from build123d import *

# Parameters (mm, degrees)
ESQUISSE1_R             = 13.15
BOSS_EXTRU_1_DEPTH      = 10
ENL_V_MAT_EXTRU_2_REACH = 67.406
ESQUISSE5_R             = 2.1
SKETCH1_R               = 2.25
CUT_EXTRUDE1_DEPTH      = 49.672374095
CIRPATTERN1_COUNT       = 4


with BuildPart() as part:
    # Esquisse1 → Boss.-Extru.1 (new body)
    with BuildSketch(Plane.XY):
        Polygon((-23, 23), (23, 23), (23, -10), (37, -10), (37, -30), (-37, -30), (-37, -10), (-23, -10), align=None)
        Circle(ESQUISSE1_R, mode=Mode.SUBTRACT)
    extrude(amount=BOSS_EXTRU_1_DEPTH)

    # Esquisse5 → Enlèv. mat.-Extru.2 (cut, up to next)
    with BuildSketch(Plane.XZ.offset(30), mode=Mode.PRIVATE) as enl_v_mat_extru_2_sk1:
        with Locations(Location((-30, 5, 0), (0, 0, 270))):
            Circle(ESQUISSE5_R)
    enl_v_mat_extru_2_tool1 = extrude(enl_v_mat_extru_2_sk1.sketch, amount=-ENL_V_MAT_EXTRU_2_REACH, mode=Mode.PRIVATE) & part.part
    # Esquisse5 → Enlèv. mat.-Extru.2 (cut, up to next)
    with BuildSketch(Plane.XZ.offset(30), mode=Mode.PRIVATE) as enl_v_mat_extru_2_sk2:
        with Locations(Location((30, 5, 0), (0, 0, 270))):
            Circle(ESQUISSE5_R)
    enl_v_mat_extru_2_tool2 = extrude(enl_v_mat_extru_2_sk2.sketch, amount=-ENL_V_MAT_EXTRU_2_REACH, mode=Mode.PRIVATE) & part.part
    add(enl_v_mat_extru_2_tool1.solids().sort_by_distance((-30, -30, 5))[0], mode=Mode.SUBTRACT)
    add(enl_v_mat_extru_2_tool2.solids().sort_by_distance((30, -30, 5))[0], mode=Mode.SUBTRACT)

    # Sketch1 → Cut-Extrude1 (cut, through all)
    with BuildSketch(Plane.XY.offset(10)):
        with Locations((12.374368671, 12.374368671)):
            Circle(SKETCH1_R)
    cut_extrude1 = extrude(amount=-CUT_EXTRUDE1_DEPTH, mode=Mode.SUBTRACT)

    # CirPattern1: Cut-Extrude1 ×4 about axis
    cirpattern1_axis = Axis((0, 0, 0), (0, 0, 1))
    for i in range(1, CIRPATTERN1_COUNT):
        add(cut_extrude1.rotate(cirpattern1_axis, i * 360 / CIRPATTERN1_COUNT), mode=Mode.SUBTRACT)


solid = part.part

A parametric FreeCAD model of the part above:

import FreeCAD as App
import Part
import Sketcher

V = App.Vector
Q = App.Units.Quantity


def add_polygon(sketch, points):
    """Adds a closed chain of lines whose ends are joined by coincident constraints."""
    first, n = sketch.GeometryCount, len(points)
    for a, b in zip(points, points[1:] + points[:1]):
        sketch.addGeometry(Part.LineSegment(App.Vector(*a, 0), App.Vector(*b, 0)), False)
    for i in range(n):
        sketch.addConstraint(Sketcher.Constraint("Coincident", first + i, 2, first + (i + 1) % n, 1))

doc = App.newDocument("Part")
body = doc.addObject("PartDesign::Body", "Body")

# Sketch on XY plane
sketch1 = body.newObject("Sketcher::SketchObject", "Sketch")
sketch1.AttachmentSupport = (doc.getObject("XY_Plane"), [""])
sketch1.MapMode = "FlatFace"
add_polygon(sketch1, [(23, 23), (-23, 23), (-23, -10), (-37, -10), (-37, -30), (37, -30), (37, -10), (23, -10)])  # lines 0-7
sketch1.addGeometry(Part.Circle(V(0, 0, 0), V(0, 0, 1), 13.15), False)  # 8
sketch1.addConstraint([
    Sketcher.Constraint("Horizontal", 0),
    Sketcher.Constraint("Vertical", 1),
    Sketcher.Constraint("Horizontal", 2),
    Sketcher.Constraint("Vertical", 3),
    Sketcher.Constraint("Horizontal", 4),
    Sketcher.Constraint("Vertical", 5),
    Sketcher.Constraint("Horizontal", 6),
    Sketcher.Constraint("Vertical", 7),
    Sketcher.Constraint("Coincident", 8, 3, -1, 1),
    Sketcher.Constraint("Symmetric", 2, 2, 5, 2, -2),
    Sketcher.Constraint("Equal", 2, 6),
    Sketcher.Constraint("Diameter", 8, Q("26.3 mm")),
    Sketcher.Constraint("DistanceX", 0, 2, 0, 1, Q("46 mm")),
    Sketcher.Constraint("DistanceX", 2, 2, 2, 1, Q("14 mm")),
    Sketcher.Constraint("DistanceY", 1, 2, 1, 1, Q("33 mm")),
    Sketcher.Constraint("DistanceY", 3, 2, 3, 1, Q("20 mm")),
    Sketcher.Constraint("DistanceY", -1, 1, 0, 2, Q("23 mm")),
])
pad1 = body.newObject("PartDesign::Pad", "Pad")
pad1.Profile = sketch1
pad1.Length = 10

# Sketch on XZ plane
sketch2 = body.newObject("Sketcher::SketchObject", "Sketch001")
sketch2.AttachmentSupport = (doc.getObject("XZ_Plane"), [""])
sketch2.MapMode = "FlatFace"
sketch2.AttachmentOffset = App.Placement(V(0, 0, 30), App.Rotation())
sketch2.addGeometry(Part.Circle(V(-30, 5, 0), V(0, 0, 1), 2.1), False)
sketch2.addConstraint([
    Sketcher.Constraint("Diameter", 0, Q("4.2 mm")),
    Sketcher.Constraint("DistanceX", 0, 3, -1, 1, Q("30 mm")),
    Sketcher.Constraint("DistanceY", -1, 1, 0, 3, Q("5 mm")),
])
pocket1 = body.newObject("PartDesign::Pocket", "Pocket")
pocket1.Profile = sketch2
pocket1.Type = "UpToFirst"

# Sketch on XZ plane
sketch3 = body.newObject("Sketcher::SketchObject", "Sketch002")
sketch3.AttachmentSupport = (doc.getObject("XZ_Plane"), [""])
sketch3.MapMode = "FlatFace"
sketch3.AttachmentOffset = App.Placement(V(0, 0, 30), App.Rotation())
sketch3.addGeometry(Part.Circle(V(30, 5, 0), V(0, 0, 1), 2.1), False)
sketch3.addConstraint([
    Sketcher.Constraint("Diameter", 0, Q("4.2 mm")),
    Sketcher.Constraint("DistanceX", -1, 1, 0, 3, Q("30 mm")),
    Sketcher.Constraint("DistanceY", -1, 1, 0, 3, Q("5 mm")),
])
pocket2 = body.newObject("PartDesign::Pocket", "Pocket001")
pocket2.Profile = sketch3
pocket2.Type = "UpToFirst"

# Sketch on XY plane
sketch4 = body.newObject("Sketcher::SketchObject", "Sketch003")
sketch4.AttachmentSupport = (doc.getObject("XY_Plane"), [""])
sketch4.MapMode = "FlatFace"
sketch4.AttachmentOffset = App.Placement(V(0, 0, 10), App.Rotation())
sketch4.addGeometry(Part.Circle(V(12.374369, 12.374369, 0), V(0, 0, 1), 2.25), False)
sketch4.addConstraint([
    Sketcher.Constraint("Diameter", 0, Q("4.5 mm")),
    Sketcher.Constraint("DistanceX", -1, 1, 0, 3, Q("12.374369 mm")),
    Sketcher.Constraint("DistanceY", -1, 1, 0, 3, Q("12.374369 mm")),
])
pocket3 = body.newObject("PartDesign::Pocket", "Pocket002")
pocket3.Profile = sketch4
pocket3.Type = "ThroughAll"
doc.recompute()

polarpattern = body.newObject("PartDesign::PolarPattern", "PolarPattern")
polarpattern.Originals = [pocket3]
polarpattern.Axis = (doc.getObject("Z_Axis"), [""])
polarpattern.Angle = 360
polarpattern.Occurrences = 4
body.Tip = polarpattern

doc.recompute()
